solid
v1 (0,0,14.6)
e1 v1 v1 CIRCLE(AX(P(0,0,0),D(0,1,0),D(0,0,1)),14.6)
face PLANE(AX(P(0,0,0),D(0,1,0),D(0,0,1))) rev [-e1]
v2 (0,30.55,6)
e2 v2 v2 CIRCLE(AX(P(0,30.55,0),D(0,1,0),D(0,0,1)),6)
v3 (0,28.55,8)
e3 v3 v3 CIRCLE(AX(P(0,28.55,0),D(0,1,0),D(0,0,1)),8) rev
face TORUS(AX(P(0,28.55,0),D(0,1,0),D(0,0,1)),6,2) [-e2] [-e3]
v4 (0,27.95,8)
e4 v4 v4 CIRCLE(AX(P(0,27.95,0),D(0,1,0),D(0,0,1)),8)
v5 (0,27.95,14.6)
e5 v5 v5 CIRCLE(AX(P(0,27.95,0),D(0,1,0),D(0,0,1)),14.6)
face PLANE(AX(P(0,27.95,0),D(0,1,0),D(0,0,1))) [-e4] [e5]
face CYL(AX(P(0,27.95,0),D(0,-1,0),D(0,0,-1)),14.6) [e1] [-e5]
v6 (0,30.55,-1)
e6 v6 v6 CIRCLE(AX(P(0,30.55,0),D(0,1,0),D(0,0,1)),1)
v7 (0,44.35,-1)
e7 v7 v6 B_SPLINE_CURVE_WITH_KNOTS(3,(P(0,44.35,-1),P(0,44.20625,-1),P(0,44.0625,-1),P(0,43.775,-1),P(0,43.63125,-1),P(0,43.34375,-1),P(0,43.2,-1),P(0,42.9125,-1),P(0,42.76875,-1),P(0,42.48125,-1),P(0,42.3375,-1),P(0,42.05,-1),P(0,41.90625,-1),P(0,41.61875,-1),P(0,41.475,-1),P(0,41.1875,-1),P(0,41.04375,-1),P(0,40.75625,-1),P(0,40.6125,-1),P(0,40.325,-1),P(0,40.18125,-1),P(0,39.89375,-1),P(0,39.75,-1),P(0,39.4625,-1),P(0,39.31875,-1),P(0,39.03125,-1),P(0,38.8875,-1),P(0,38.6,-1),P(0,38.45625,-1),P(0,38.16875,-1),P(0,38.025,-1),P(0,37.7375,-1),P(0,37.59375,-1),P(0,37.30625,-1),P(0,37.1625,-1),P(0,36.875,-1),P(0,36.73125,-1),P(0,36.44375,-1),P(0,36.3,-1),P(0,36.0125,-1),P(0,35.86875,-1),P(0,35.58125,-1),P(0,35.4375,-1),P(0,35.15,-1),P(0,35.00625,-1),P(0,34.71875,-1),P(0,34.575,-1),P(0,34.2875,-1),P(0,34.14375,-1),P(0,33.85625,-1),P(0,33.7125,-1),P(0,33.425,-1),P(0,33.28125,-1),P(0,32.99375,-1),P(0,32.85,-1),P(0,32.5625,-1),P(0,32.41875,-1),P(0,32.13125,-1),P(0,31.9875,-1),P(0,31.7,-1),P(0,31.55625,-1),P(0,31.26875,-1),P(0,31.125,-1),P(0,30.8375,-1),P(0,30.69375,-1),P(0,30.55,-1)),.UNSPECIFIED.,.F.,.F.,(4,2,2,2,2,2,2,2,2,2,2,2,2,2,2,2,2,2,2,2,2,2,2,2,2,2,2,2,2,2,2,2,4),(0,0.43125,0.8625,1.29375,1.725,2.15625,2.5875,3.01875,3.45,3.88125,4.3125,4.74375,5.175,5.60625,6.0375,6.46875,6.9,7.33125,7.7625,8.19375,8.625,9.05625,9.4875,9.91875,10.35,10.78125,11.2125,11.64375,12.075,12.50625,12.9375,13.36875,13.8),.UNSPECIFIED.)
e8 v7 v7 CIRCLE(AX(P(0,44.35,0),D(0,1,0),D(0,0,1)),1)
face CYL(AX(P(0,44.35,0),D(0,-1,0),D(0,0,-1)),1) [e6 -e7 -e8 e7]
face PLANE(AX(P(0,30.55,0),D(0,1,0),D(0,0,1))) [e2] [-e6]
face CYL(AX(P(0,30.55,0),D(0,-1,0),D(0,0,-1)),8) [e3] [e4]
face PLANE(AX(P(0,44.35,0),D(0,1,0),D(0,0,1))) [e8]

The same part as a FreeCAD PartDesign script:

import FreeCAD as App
import Part
import Sketcher
from FreeCAD import Vector


def edges_at(feature, points):
    """Names of the edges that pass closest to the given points."""
    edges = feature.Shape.Edges
    near = lambda p: min(range(len(edges)), key=lambda i: edges[i].distToShape(Part.Vertex(*p))[0])
    return sorted({f"Edge{near(p) + 1}" for p in points})

doc = App.newDocument("Part")
body = doc.addObject("PartDesign::Body", "Body")

# Sketch on XZ plane
sketch1 = body.newObject("Sketcher::SketchObject", "Sketch")
sketch1.AttachmentSupport = (doc.getObject("XZ_Plane"), [""])
sketch1.MapMode = "FlatFace"
sketch1.addGeometry(Part.Circle(Vector(0, 0, 0), Vector(0, 0, 1), 15), False)
sketch1.addConstraint(Sketcher.Constraint("Coincident", 0, 3, -1, 1))
sketch1.addConstraint(Sketcher.Constraint("Diameter", 0, 29.2))
pad1 = body.newObject("PartDesign::Pad", "Pad")
pad1.Profile = sketch1
pad1.Length = 27.95
pad1.Reversed = True

# Sketch on XZ plane
sketch2 = body.newObject("Sketcher::SketchObject", "Sketch001")
sketch2.AttachmentSupport = (doc.getObject("XZ_Plane"), [""])
sketch2.MapMode = "FlatFace"
sketch2.AttachmentOffset = App.Placement(Vector(0, 0, -27.95), App.Rotation())
sketch2.addGeometry(Part.Circle(Vector(0, 0, 0), Vector(0, 0, 1), 8), False)
sketch2.addConstraint(Sketcher.Constraint("Coincident", 0, 3, -1, 1))
sketch2.addConstraint(Sketcher.Constraint("Diameter", 0, 16.0))
pad2 = body.newObject("PartDesign::Pad", "Pad001")
pad2.Profile = sketch2
pad2.Length = 2.6
pad2.Reversed = True
doc.recompute()

fillet = body.newObject("PartDesign::Fillet", "Fillet")
fillet.Base = (pad2, edges_at(pad2, [(0, 30.55, -8)]))
fillet.Radius = 2

# Sketch on XZ plane
sketch3 = body.newObject("Sketcher::SketchObject", "Sketch002")
sketch3.AttachmentSupport = (doc.getObject("XZ_Plane"), [""])
sketch3.MapMode = "FlatFace"
sketch3.AttachmentOffset = App.Placement(Vector(0, 0, -30.55), App.Rotation())
sketch3.addGeometry(Part.Circle(Vector(0, 0, 0), Vector(0, 0, 1), 1), False)
sketch3.addConstraint(Sketcher.Constraint("Coincident", 0, 3, -1, 1))
sketch3.addConstraint(Sketcher.Constraint("Diameter", 0, 2.0))
pad3 = body.newObject("PartDesign::Pad", "Pad002")
pad3.Profile = sketch3
pad3.Length = 13.8
pad3.Reversed = True

doc.recompute()
